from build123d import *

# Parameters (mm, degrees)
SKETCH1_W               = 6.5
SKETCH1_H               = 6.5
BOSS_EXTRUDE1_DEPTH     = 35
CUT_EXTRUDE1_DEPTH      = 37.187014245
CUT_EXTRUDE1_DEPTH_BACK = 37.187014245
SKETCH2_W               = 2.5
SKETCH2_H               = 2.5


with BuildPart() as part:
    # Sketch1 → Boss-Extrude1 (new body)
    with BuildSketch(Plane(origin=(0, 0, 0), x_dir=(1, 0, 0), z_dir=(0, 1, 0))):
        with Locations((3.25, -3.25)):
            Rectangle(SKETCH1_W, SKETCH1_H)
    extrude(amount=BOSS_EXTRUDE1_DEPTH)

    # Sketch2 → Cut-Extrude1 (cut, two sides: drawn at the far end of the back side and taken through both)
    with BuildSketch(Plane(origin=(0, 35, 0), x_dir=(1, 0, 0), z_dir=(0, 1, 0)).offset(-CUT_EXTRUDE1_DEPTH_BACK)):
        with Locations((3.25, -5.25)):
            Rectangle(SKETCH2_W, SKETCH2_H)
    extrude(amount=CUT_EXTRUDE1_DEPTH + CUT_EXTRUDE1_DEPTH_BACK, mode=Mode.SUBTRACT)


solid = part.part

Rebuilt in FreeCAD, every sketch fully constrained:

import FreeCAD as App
import Part
import Sketcher

V = App.Vector
Q = App.Units.Quantity

doc = App.newDocument("Part")
body = doc.addObject("PartDesign::Body", "Body")

# Sketch on XZ plane
sketch1 = body.newObject("Sketcher::SketchObject", "Sketch")
sketch1.AttachmentSupport = (doc.getObject("XZ_Plane"), [""])
sketch1.MapMode = "FlatFace"
sketch1.addGeometry([
    Part.LineSegment(V(0, 0, 0), V(0, 6, 0)),
    Part.LineSegment(V(0, 6, 0), V(6, 6, 0)),
    Part.LineSegment(V(6, 6, 0), V(6, 0, 0)),
    Part.LineSegment(V(6, 0, 0), V(0, 0, 0)),
], False)
sketch1.addConstraint([
    Sketcher.Constraint("Coincident", 0, 2, 1, 1),
    Sketcher.Constraint("Coincident", 1, 2, 2, 1),
    Sketcher.Constraint("Coincident", 2, 2, 3, 1),
    Sketcher.Constraint("Coincident", 3, 2, 0, 1),
    Sketcher.Constraint("Vertical", 0),
    Sketcher.Constraint("Horizontal", 1),
    Sketcher.Constraint("Vertical", 2),
    Sketcher.Constraint("Horizontal", 3),
    Sketcher.Constraint("Coincident", 3, 2, -1, 1),
    Sketcher.Constraint("Equal", 3, 0),
    Sketcher.Constraint("DistanceX", 1, 1, 1, 2, Q("6.5 mm")),
])
pad1 = body.newObject("PartDesign::Pad", "Pad")
pad1.Profile = sketch1
pad1.Length = 35
pad1.Reversed = True

# Sketch on XZ plane
sketch2 = body.newObject("Sketcher::SketchObject", "Sketch001")
sketch2.AttachmentSupport = (doc.getObject("XZ_Plane"), [""])
sketch2.MapMode = "FlatFace"
sketch2.AttachmentOffset = App.Placement(V(0, 0, -35), App.Rotation())
sketch2.addGeometry([
    Part.LineSegment(V(2, 4, 0), V(2, 6.5, 0)),
    Part.LineSegment(V(2, 6.5, 0), V(4.5, 6.5, 0)),
    Part.LineSegment(V(4.5, 6.5, 0), V(4.5, 4, 0)),
    Part.LineSegment(V(4.5, 4, 0), V(2, 4, 0)),
], False)
sketch2.addConstraint([
    Sketcher.Constraint("Coincident", 0, 2, 1, 1),
    Sketcher.Constraint("Coincident", 1, 2, 2, 1),
    Sketcher.Constraint("Coincident", 2, 2, 3, 1),
    Sketcher.Constraint("Coincident", 3, 2, 0, 1),
    Sketcher.Constraint("Vertical", 0),
    Sketcher.Constraint("Horizontal", 1),
    Sketcher.Constraint("Vertical", 2),
    Sketcher.Constraint("Horizontal", 3),
    Sketcher.Constraint("Equal", 3, 0),
    Sketcher.Constraint("DistanceX", 1, 1, 1, 2, Q("2.5 mm")),
    Sketcher.Constraint("DistanceX", -1, 1, 0, 2, Q("2 mm")),
    Sketcher.Constraint("DistanceY", -1, 1, 2, 2, Q("4 mm")),
])
pocket1 = body.newObject("PartDesign::Pocket", "Pocket")
pocket1.Profile = sketch2
pocket1.Type = "ThroughAll"
pocket1.Midplane = True

doc.recompute()
